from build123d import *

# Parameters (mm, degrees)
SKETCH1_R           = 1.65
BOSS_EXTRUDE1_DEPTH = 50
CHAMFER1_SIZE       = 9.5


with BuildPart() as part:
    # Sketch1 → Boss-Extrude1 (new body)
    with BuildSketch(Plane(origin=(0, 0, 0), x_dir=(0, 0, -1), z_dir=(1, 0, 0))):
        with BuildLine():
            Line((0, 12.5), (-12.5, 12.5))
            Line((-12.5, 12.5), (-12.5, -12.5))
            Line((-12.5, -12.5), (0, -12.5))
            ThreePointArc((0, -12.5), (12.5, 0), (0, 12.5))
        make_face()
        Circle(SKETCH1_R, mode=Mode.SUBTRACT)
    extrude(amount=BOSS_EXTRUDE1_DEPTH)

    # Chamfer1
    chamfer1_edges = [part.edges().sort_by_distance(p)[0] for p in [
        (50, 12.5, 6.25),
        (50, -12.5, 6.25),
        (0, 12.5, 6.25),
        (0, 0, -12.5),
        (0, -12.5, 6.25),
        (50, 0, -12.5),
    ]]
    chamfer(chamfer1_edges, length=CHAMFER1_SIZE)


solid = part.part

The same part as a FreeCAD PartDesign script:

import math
import FreeCAD as App
import Part
import Sketcher
from FreeCAD import Vector
Q = App.Units.Quantity


def edges_at(feature, points):
    """Names of the edges that pass closest to the given points."""
    edges = feature.Shape.Edges
    near = lambda p: min(range(len(edges)), key=lambda i: edges[i].distToShape(Part.Vertex(*p))[0])
    return sorted({f"Edge{near(p) + 1}" for p in points})

doc = App.newDocument("Part")
body = doc.addObject("PartDesign::Body", "Body")

# Sketch on YZ plane
sketch1 = body.newObject("Sketcher::SketchObject", "Sketch")
sketch1.AttachmentSupport = (doc.getObject("YZ_Plane"), [""])
sketch1.MapMode = "FlatFace"
sketch1.addGeometry([
    Part.LineSegment(Vector(12.5, 0, 0), Vector(12.5, 12.5, 0)),  # 0
    Part.LineSegment(Vector(12.5, 12.5, 0), Vector(-12.5, 12.5, 0)),  # 1
    Part.LineSegment(Vector(-12.5, 12.5, 0), Vector(-12.5, 0, 0)),  # 2
    Part.ArcOfCircle(Part.Circle(Vector(0, 0, 0), Vector(0, 0, 1), 12.5), math.radians(180), math.radians(360)),  # 3
    Part.Circle(Vector(0, 0, 0), Vector(0, 0, 1), 1.65),  # 4
], False)
sketch1.addConstraint([
    Sketcher.Constraint("Coincident", 0, 2, 1, 1),
    Sketcher.Constraint("Coincident", 1, 2, 2, 1),
    Sketcher.Constraint("Tangent", 2, 2, 3, 1),
    Sketcher.Constraint("Tangent", 3, 2, 0, 1),
    Sketcher.Constraint("Vertical", 0),
    Sketcher.Constraint("Horizontal", 1),
    Sketcher.Constraint("Vertical", 2),
    Sketcher.Constraint("Coincident", 3, 3, -1, 1),
    Sketcher.Constraint("Coincident", 4, 3, -1, 1),
    Sketcher.Constraint("Diameter", 4, Q("3.3 mm")),
    Sketcher.Constraint("Radius", 3, Q("12.5 mm")),
    Sketcher.Constraint("DistanceY", 0, 1, 0, 2, Q("12.5 mm")),
])
pad1 = body.newObject("PartDesign::Pad", "Pad")
pad1.Profile = sketch1
pad1.Length = 50
doc.recompute()

chamfer = body.newObject("PartDesign::Chamfer", "Chamfer")
chamfer.Base = (pad1, edges_at(pad1, [
    (50, 12.5, 6.25),
    (50, -12.5, 6.25),
    (0, 12.5, 6.25),
    (0, 0, -12.5),
    (0, -12.5, 6.25),
    (50, 0, -12.5),
]))
chamfer.Size = 9.5

doc.recompute()
